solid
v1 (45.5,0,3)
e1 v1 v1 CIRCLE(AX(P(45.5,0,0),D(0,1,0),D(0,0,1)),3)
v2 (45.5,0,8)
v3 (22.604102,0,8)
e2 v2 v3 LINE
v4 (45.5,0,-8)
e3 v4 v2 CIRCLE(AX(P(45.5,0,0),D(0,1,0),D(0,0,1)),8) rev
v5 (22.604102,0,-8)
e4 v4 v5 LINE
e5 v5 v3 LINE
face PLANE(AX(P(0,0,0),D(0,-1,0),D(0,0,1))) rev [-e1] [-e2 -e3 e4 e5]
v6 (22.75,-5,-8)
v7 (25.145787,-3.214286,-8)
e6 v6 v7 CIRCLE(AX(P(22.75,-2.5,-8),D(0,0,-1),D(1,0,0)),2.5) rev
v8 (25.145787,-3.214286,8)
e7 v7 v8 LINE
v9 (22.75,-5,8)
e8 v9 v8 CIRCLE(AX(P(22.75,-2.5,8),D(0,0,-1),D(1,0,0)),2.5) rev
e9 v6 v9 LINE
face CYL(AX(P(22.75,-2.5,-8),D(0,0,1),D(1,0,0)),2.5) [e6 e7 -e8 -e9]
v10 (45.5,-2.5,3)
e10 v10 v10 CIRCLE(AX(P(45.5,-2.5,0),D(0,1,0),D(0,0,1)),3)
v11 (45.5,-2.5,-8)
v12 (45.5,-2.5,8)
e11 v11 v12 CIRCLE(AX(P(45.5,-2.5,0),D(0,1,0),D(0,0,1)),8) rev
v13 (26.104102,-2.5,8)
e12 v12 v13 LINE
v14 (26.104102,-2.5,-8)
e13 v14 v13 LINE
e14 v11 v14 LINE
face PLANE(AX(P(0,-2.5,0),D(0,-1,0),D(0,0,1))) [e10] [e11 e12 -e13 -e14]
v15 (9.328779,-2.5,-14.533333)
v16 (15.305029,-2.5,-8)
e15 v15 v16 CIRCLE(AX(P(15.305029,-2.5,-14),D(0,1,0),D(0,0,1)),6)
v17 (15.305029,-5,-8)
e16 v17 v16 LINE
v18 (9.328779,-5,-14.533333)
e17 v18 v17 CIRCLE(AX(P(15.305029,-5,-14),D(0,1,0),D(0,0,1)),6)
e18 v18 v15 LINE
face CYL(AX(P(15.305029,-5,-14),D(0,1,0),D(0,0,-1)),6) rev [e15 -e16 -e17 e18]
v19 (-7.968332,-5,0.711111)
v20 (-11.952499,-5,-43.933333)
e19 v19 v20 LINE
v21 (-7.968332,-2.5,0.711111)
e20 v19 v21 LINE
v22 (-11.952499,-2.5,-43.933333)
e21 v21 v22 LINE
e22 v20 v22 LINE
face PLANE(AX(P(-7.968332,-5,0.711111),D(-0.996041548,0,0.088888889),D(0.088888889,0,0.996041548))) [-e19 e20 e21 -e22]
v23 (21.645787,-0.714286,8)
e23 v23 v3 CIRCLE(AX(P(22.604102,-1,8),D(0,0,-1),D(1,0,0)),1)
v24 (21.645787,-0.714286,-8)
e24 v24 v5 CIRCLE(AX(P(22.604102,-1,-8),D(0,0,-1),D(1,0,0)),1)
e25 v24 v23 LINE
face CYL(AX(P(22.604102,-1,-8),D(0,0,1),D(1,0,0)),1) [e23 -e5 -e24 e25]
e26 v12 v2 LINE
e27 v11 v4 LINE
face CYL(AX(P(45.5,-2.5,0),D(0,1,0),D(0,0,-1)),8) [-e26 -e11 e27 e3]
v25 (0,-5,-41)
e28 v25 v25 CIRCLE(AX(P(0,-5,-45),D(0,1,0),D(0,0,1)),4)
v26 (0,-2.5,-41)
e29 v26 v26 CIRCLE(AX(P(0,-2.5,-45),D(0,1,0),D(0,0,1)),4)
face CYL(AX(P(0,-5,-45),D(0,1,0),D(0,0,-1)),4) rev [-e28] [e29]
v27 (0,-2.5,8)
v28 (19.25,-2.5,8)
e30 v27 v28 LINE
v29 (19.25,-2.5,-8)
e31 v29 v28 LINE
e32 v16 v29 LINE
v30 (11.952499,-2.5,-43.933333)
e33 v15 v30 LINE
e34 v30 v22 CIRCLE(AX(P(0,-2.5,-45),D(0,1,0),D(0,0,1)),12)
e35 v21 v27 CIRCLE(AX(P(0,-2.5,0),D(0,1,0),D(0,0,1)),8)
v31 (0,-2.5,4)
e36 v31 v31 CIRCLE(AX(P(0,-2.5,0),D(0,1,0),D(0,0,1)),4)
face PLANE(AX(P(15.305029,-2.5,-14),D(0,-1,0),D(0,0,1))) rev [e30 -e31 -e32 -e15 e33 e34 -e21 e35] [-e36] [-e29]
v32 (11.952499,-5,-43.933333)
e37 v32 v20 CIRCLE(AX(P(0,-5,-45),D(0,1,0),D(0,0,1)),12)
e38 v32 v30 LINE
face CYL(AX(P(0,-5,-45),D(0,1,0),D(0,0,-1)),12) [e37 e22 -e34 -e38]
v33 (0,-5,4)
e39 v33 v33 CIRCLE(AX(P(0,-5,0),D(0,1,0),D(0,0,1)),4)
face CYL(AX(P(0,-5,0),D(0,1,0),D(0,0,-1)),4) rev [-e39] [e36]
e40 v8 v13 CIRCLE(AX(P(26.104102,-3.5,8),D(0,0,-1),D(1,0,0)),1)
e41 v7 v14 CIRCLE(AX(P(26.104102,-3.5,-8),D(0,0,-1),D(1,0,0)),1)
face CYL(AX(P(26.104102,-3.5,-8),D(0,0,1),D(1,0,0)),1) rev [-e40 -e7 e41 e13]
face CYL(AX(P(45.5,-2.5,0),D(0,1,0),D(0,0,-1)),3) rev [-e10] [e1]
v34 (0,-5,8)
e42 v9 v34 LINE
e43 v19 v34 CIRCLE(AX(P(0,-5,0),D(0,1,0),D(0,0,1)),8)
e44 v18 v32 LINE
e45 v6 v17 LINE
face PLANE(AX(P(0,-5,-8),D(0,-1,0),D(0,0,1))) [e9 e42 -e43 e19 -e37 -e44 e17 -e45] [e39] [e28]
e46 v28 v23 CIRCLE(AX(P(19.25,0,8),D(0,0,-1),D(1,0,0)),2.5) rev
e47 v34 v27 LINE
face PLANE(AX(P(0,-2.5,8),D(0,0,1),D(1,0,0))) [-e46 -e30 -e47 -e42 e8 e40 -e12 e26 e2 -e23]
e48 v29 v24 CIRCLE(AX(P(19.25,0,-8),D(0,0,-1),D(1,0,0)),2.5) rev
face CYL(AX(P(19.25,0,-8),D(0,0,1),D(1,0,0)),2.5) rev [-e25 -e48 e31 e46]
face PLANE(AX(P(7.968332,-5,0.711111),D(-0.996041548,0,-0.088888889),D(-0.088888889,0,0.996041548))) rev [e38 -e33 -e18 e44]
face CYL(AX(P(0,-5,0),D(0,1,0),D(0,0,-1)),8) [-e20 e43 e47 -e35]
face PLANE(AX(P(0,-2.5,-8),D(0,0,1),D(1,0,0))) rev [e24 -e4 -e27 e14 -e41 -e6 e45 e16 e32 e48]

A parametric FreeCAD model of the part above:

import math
import FreeCAD as App
import Part
import Sketcher

doc = App.newDocument("Part")
body = doc.addObject("PartDesign::Body", "Body")

sketch1 = body.newObject("Sketcher::SketchObject", "Sketch")
sketch1.AttachmentSupport = (doc.getObject("XZ_Plane"), [""])
sketch1.MapMode = "FlatFace"
sketch1.addGeometry(Part.LineSegment(App.Vector(22.8, 8, 0), App.Vector(45.5, 8, 0)), False)
sketch1.addGeometry(Part.ArcOfCircle(Part.Circle(App.Vector(45.5, 0, 0), App.Vector(0, 0, 1), 8), math.radians(-90), math.radians(90)), False)
sketch1.addGeometry(Part.LineSegment(App.Vector(45.5, -8, 0), App.Vector(22.8, -8, 0)), False)
sketch1.addGeometry(Part.LineSegment(App.Vector(22.8, -8, 0), App.Vector(22.8, 8, 0)), False)
sketch1.addGeometry(Part.Circle(App.Vector(45.5, 0, 0), App.Vector(0, 0, 1), 3), False)
sketch1.addConstraint(Sketcher.Constraint("Tangent", 0, 2, 1, 2))
sketch1.addConstraint(Sketcher.Constraint("Tangent", 1, 1, 2, 1))
sketch1.addConstraint(Sketcher.Constraint("Coincident", 2, 2, 3, 1))
sketch1.addConstraint(Sketcher.Constraint("Coincident", 3, 2, 0, 1))
sketch1.addConstraint(Sketcher.Constraint("Horizontal", 0))
sketch1.addConstraint(Sketcher.Constraint("Horizontal", 2))
sketch1.addConstraint(Sketcher.Constraint("Vertical", 3))
sketch1.addConstraint(Sketcher.Constraint("Coincident", 4, 3, 1, 3))
sketch1.addConstraint(Sketcher.Constraint("PointOnObject", 1, 3, -1))
sketch1.addConstraint(Sketcher.Constraint("Diameter", 4, 6.0))
sketch1.addConstraint(Sketcher.Constraint("Radius", 1, 8.0))
sketch1.addConstraint(Sketcher.Constraint("DistanceX", 0, 1, 0, 2, 22.75))
sketch1.addConstraint(Sketcher.Constraint("DistanceX", -1, 1, 1, 3, 45.5))
pad1 = body.newObject("PartDesign::Pad", "Pad")
pad1.Profile = sketch1
pad1.Length = 2.5
pad1.Reversed = True
body2 = doc.addObject("PartDesign::Body", "Body001")

sketch2 = body2.newObject("Sketcher::SketchObject", "Sketch001")
sketch2.AttachmentSupport = (doc.getObject("XZ_Plane001"), [""])
sketch2.MapMode = "FlatFace"
sketch2.AttachmentOffset = App.Placement(App.Vector(0, 0, -2.5), App.Rotation())
sketch2.addGeometry(Part.LineSegment(App.Vector(0, 8, 0), App.Vector(22.75, 8, 0)), False)
sketch2.addGeometry(Part.LineSegment(App.Vector(22.75, 8, 0), App.Vector(22.75, -8, 0)), False)
sketch2.addGeometry(Part.LineSegment(App.Vector(22.75, -8, 0), App.Vector(15.305, -8, 0)), False)
sketch2.addGeometry(Part.ArcOfCircle(Part.Circle(App.Vector(15.305, -14, 0), App.Vector(0, 0, 1), 6), math.radians(90), math.radians(185)), False)
sketch2.addGeometry(Part.LineSegment(App.Vector(9.3288, -14.5333, 0), App.Vector(11.9524, -43.9325, 0)), False)
sketch2.addGeometry(Part.LineSegment(App.Vector(11.9524, -43.9325, 0), App.Vector(11.9525, -43.9333, 0)), False)
sketch2.addGeometry(Part.ArcOfCircle(Part.Circle(App.Vector(0, -45, 0), App.Vector(0, 0, 1), 12), math.radians(175), math.radians(365)), False)
sketch2.addGeometry(Part.LineSegment(App.Vector(-11.9525, -43.9333, 0), App.Vector(-7.9683, 0.7111, 0)), False)
sketch2.addGeometry(Part.ArcOfCircle(Part.Circle(App.Vector(0, 0, 0), App.Vector(0, 0, 1), 8), math.radians(90), math.radians(175)), False)
sketch2.addGeometry(Part.Circle(App.Vector(0, 0, 0), App.Vector(0, 0, 1), 4), False)
sketch2.addGeometry(Part.Circle(App.Vector(0, -45, 0), App.Vector(0, 0, 1), 4), False)
sketch2.addConstraint(Sketcher.Constraint("Coincident", 0, 2, 1, 1))
sketch2.addConstraint(Sketcher.Constraint("Coincident", 1, 2, 2, 1))
sketch2.addConstraint(Sketcher.Constraint("Tangent", 2, 2, 3, 1))
sketch2.addConstraint(Sketcher.Constraint("Tangent", 3, 2, 4, 1))
sketch2.addConstraint(Sketcher.Constraint("Coincident", 4, 2, 5, 1))
sketch2.addConstraint(Sketcher.Constraint("Tangent", 5, 2, 6, 2))
sketch2.addConstraint(Sketcher.Constraint("Tangent", 6, 1, 7, 1))
sketch2.addConstraint(Sketcher.Constraint("Tangent", 7, 2, 8, 2))
sketch2.addConstraint(Sketcher.Constraint("Tangent", 8, 1, 0, 1))
sketch2.addConstraint(Sketcher.Constraint("Horizontal", 0))
sketch2.addConstraint(Sketcher.Constraint("Vertical", 1))
sketch2.addConstraint(Sketcher.Constraint("Horizontal", 2))
sketch2.addConstraint(Sketcher.Constraint("Coincident", 8, 3, -1, 1))
sketch2.addConstraint(Sketcher.Constraint("Coincident", 9, 3, -1, 1))
sketch2.addConstraint(Sketcher.Constraint("Coincident", 10, 3, 6, 3))
sketch2.addConstraint(Sketcher.Constraint("Equal", 9, 10))
sketch2.addConstraint(Sketcher.Constraint("Symmetric", 5, 2, 6, 1, -2))
sketch2.addConstraint(Sketcher.Constraint("Diameter", 9, 8.0))
sketch2.addConstraint(Sketcher.Constraint("Radius", 3, 6.0))
sketch2.addConstraint(Sketcher.Constraint("Radius", 6, 12.0))
sketch2.addConstraint(Sketcher.Constraint("Radius", 8, 8.0))
sketch2.addConstraint(Sketcher.Constraint("DistanceY", 1, 2, 1, 1, 16.0))
sketch2.addConstraint(Sketcher.Constraint("DistanceY", 6, 3, -1, 1, 45.0))
sketch2.addConstraint(Sketcher.Constraint("DistanceX", 0, 1, 0, 2, 22.75))
sketch2.addConstraint(Sketcher.Constraint("DistanceY", 5, 2, 3, 2, 29.4))
sketch2.addConstraint(Sketcher.Constraint("DistanceX", 4, 2, 3, 3, 3.352601))
pad2 = body2.newObject("PartDesign::Pad", "Pad001")
pad2.Profile = sketch2
pad2.Length = 2.5
pad2.Reversed = True
body.AllowCompound = True
doc.recompute()

boolean = body.newObject("PartDesign::Boolean", "Boolean")
boolean.Type = "Fuse"
boolean.addObjects([body2])

sketch3 = body.newObject("Sketcher::SketchObject", "Sketch002")
sketch3.AttachmentSupport = (doc.getObject("XY_Plane"), [""])
sketch3.MapMode = "FlatFace"
sketch3.AttachmentOffset = App.Placement(App.Vector(0, 0, 8), App.Rotation())
sketch3.addGeometry(Part.LineSegment(App.Vector(22.75, 5, 0), App.Vector(19.25, 5, 0)), False)
sketch3.addGeometry(Part.LineSegment(App.Vector(19.25, 5, 0), App.Vector(19.25, 2.5, 0)), False)
sketch3.addGeometry(Part.ArcOfCircle(Part.Circle(App.Vector(19.25, 0, 0), App.Vector(0, 0, 1), 2.5), math.radians(17), math.radians(90)), False)
sketch3.addGeometry(Part.ArcOfCircle(Part.Circle(App.Vector(22.6, 1, 0), App.Vector(0, 0, 1), 1), math.radians(-163), math.radians(-90)), False)
sketch3.addGeometry(Part.LineSegment(App.Vector(22.6, 0, 0), App.Vector(22.75, 0, 0)), False)
sketch3.addGeometry(Part.LineSegment(App.Vector(22.75, 0, 0), App.Vector(22.75, 2.5, 0)), False)
sketch3.addGeometry(Part.LineSegment(App.Vector(22.75, 2.5, 0), App.Vector(26.1, 2.5, 0)), False)
sketch3.addGeometry(Part.ArcOfCircle(Part.Circle(App.Vector(26.1, 3.5, 0), App.Vector(0, 0, 1), 1), math.radians(-163), math.radians(-90)), False)
sketch3.addGeometry(Part.ArcOfCircle(Part.Circle(App.Vector(22.75, 2.5, 0), App.Vector(0, 0, 1), 2.5), math.radians(17), math.radians(90)), False)
sketch3.addConstraint(Sketcher.Constraint("Coincident", 0, 2, 1, 1))
sketch3.addConstraint(Sketcher.Constraint("Coincident", 1, 2, 2, 2))
sketch3.addConstraint(Sketcher.Constraint("Tangent", 2, 1, 3, 1))
sketch3.addConstraint(Sketcher.Constraint("Tangent", 3, 2, 4, 1))
sketch3.addConstraint(Sketcher.Constraint("Coincident", 4, 2, 5, 1))
sketch3.addConstraint(Sketcher.Constraint("Coincident", 5, 2, 6, 1))
sketch3.addConstraint(Sketcher.Constraint("Tangent", 6, 2, 7, 2))
sketch3.addConstraint(Sketcher.Constraint("Tangent", 7, 1, 8, 1))
sketch3.addConstraint(Sketcher.Constraint("Tangent", 8, 2, 0, 1))
sketch3.addConstraint(Sketcher.Constraint("Horizontal", 0))
sketch3.addConstraint(Sketcher.Constraint("Vertical", 1))
sketch3.addConstraint(Sketcher.Constraint("Horizontal", 4))
sketch3.addConstraint(Sketcher.Constraint("Vertical", 5))
sketch3.addConstraint(Sketcher.Constraint("Horizontal", 6))
sketch3.addConstraint(Sketcher.Constraint("Coincident", 5, 2, 8, 3))
sketch3.addConstraint(Sketcher.Constraint("Equal", 3, 7))
sketch3.addConstraint(Sketcher.Constraint("Equal", 2, 8))
sketch3.addConstraint(Sketcher.Constraint("PointOnObject", 2, 3, -1))
sketch3.addConstraint(Sketcher.Constraint("PointOnObject", 3, 2, -1))
sketch3.addConstraint(Sketcher.Constraint("Horizontal", 8, 3, 1, 2))
sketch3.addConstraint(Sketcher.Constraint("Vertical", 2, 3, 0, 2))
sketch3.addConstraint(Sketcher.Constraint("Radius", 3, 1.0))
sketch3.addConstraint(Sketcher.Constraint("Radius", 2, 2.5))
sketch3.addConstraint(Sketcher.Constraint("DistanceX", 0, 2, 0, 1, 3.5))
sketch3.addConstraint(Sketcher.Constraint("DistanceX", -1, 1, 2, 3, 19.25))
pad3 = body.newObject("PartDesign::Pad", "Pad002")
pad3.Profile = sketch3
pad3.Length = 16
pad3.Reversed = True
body3 = doc.addObject("PartDesign::Body", "Body002")
doc.recompute()

mirroring = doc.addObject("Part::Mirroring", "Mirroring")
mirroring.Source = body
mirroring.Base = App.Vector(0, 0, 0)
mirroring.Normal = App.Vector(0, 1, 0)
body3.BaseFeature = mirroring
doc.recompute()
body.Visibility = False
mirroring.Visibility = False

doc.recompute()
